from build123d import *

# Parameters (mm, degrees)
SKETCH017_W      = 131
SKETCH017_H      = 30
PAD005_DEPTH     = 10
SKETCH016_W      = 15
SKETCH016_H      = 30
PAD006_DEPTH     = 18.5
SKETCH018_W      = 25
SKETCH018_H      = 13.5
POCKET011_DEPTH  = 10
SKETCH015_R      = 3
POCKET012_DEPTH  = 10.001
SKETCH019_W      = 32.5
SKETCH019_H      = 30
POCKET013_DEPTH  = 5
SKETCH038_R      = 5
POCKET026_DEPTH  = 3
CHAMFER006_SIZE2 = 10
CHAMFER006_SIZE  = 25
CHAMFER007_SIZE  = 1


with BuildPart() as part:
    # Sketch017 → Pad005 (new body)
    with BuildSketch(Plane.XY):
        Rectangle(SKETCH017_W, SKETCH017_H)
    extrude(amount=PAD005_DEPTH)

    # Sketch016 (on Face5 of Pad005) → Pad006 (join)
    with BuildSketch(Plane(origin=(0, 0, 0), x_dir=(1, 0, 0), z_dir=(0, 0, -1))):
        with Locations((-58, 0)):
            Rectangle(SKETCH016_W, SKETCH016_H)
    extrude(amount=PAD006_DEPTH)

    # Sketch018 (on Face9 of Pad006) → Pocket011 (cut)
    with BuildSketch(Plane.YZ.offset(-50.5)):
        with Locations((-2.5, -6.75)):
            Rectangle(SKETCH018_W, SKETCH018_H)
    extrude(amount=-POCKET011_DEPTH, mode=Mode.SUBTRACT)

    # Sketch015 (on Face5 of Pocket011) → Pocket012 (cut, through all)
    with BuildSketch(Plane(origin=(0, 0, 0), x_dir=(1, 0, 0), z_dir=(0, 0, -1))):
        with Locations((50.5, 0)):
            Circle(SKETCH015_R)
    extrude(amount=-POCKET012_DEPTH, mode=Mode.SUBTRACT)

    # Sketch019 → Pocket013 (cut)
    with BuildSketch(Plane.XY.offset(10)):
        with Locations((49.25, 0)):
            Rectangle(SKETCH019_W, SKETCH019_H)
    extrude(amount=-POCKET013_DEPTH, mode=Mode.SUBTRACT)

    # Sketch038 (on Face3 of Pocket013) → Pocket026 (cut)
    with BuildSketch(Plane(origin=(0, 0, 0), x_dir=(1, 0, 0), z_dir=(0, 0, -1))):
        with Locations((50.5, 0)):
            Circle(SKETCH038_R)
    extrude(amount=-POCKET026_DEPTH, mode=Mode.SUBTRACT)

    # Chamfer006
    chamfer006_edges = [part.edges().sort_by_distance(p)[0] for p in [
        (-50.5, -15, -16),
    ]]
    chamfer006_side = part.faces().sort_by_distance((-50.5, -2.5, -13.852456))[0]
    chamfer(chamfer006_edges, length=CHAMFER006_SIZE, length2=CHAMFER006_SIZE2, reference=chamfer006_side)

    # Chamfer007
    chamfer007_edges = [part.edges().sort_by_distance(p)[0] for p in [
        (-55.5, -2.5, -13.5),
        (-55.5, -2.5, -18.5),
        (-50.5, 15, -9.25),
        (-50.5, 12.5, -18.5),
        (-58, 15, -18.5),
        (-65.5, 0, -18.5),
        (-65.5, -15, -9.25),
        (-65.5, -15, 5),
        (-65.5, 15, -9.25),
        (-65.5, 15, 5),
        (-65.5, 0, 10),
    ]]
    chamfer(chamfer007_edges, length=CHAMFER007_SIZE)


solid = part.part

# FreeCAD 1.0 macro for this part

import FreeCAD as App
import Part
import Sketcher


def edges_at(feature, points):
    """Names of the edges that pass closest to the given points."""
    edges = feature.Shape.Edges
    near = lambda p: min(range(len(edges)), key=lambda i: edges[i].distToShape(Part.Vertex(*p))[0])
    return sorted({f"Edge{near(p) + 1}" for p in points})

doc = App.newDocument("Part")
body = doc.addObject("PartDesign::Body", "Body")

# Sketch on XY plane
sketch1 = body.newObject("Sketcher::SketchObject", "Sketch")
sketch1.AttachmentSupport = (doc.getObject("XY_Plane"), [""])
sketch1.MapMode = "FlatFace"
sketch1.addGeometry([
    Part.LineSegment(App.Vector(-66, 15, 0), App.Vector(-66, -15, 0)),
    Part.LineSegment(App.Vector(-66, -15, 0), App.Vector(66, -15, 0)),
    Part.LineSegment(App.Vector(66, -15, 0), App.Vector(66, 15, 0)),
    Part.LineSegment(App.Vector(66, 15, 0), App.Vector(-66, 15, 0)),
], False)
sketch1.addConstraint([
    Sketcher.Constraint("Coincident", 0, 2, 1, 1),
    Sketcher.Constraint("Coincident", 1, 2, 2, 1),
    Sketcher.Constraint("Coincident", 2, 2, 3, 1),
    Sketcher.Constraint("Coincident", 3, 2, 0, 1),
    Sketcher.Constraint("Vertical", 0),
    Sketcher.Constraint("Horizontal", 1),
    Sketcher.Constraint("Vertical", 2),
    Sketcher.Constraint("Horizontal", 3),
    Sketcher.Constraint("Symmetric", 0, 2, 2, 2, -1, 1),
    Sketcher.Constraint("DistanceX", 1, 1, 1, 2, 131.0),
    Sketcher.Constraint("DistanceY", 0, 2, 0, 1, 30.0),
])
pad1 = body.newObject("PartDesign::Pad", "Pad")
pad1.Profile = sketch1
pad1.Length = 10

# Sketch on XY plane
sketch2 = body.newObject("Sketcher::SketchObject", "Sketch001")
sketch2.AttachmentSupport = (doc.getObject("XY_Plane"), [""])
sketch2.MapMode = "FlatFace"
sketch2.addGeometry([
    Part.LineSegment(App.Vector(-66, -15, 0), App.Vector(-66, 15, 0)),
    Part.LineSegment(App.Vector(-66, 15, 0), App.Vector(-50, 15, 0)),
    Part.LineSegment(App.Vector(-50, 15, 0), App.Vector(-50, -15, 0)),
    Part.LineSegment(App.Vector(-50, -15, 0), App.Vector(-66, -15, 0)),
], False)
sketch2.addConstraint([
    Sketcher.Constraint("Coincident", 0, 2, 1, 1),
    Sketcher.Constraint("Coincident", 1, 2, 2, 1),
    Sketcher.Constraint("Coincident", 2, 2, 3, 1),
    Sketcher.Constraint("Coincident", 3, 2, 0, 1),
    Sketcher.Constraint("Vertical", 0),
    Sketcher.Constraint("Horizontal", 1),
    Sketcher.Constraint("Vertical", 2),
    Sketcher.Constraint("Horizontal", 3),
    Sketcher.Constraint("DistanceX", 1, 1, 1, 2, 15.0),
    Sketcher.Constraint("DistanceY", 0, 1, 0, 2, 30.0),
    Sketcher.Constraint("DistanceY", -1, 1, 0, 2, 15.0),
    Sketcher.Constraint("DistanceX", 0, 2, -1, 1, 65.5),
])
pad2 = body.newObject("PartDesign::Pad", "Pad001")
pad2.Profile = sketch2
pad2.Length = 18.5
pad2.Reversed = True

# Sketch on YZ plane
sketch3 = body.newObject("Sketcher::SketchObject", "Sketch002")
sketch3.AttachmentSupport = (doc.getObject("YZ_Plane"), [""])
sketch3.MapMode = "FlatFace"
sketch3.AttachmentOffset = App.Placement(App.Vector(0, 0, -50.5), App.Rotation())
sketch3.addGeometry([
    Part.LineSegment(App.Vector(-15, 0, 0), App.Vector(-15, -14, 0)),
    Part.LineSegment(App.Vector(-15, -14, 0), App.Vector(10, -14, 0)),
    Part.LineSegment(App.Vector(10, -14, 0), App.Vector(10, 0, 0)),
    Part.LineSegment(App.Vector(10, 0, 0), App.Vector(-15, 0, 0)),
], False)
sketch3.addConstraint([
    Sketcher.Constraint("Coincident", 0, 2, 1, 1),
    Sketcher.Constraint("Coincident", 1, 2, 2, 1),
    Sketcher.Constraint("Coincident", 2, 2, 3, 1),
    Sketcher.Constraint("Coincident", 3, 2, 0, 1),
    Sketcher.Constraint("Vertical", 0),
    Sketcher.Constraint("Horizontal", 1),
    Sketcher.Constraint("Vertical", 2),
    Sketcher.Constraint("Horizontal", 3),
    Sketcher.Constraint("PointOnObject", 2, 2, -1),
    Sketcher.Constraint("DistanceX", 1, 1, 1, 2, 25.0),
    Sketcher.Constraint("DistanceY", 0, 2, 0, 1, 13.5),
    Sketcher.Constraint("DistanceX", 0, 2, -1, 1, 15.0),
])
pocket1 = body.newObject("PartDesign::Pocket", "Pocket")
pocket1.Profile = sketch3
pocket1.Length = 10

# Sketch on XY plane
sketch4 = body.newObject("Sketcher::SketchObject", "Sketch003")
sketch4.AttachmentSupport = (doc.getObject("XY_Plane"), [""])
sketch4.MapMode = "FlatFace"
sketch4.addGeometry(Part.Circle(App.Vector(50.5, 0, 0), App.Vector(0, 0, 1), 3), False)
sketch4.addConstraint([
    Sketcher.Constraint("PointOnObject", 0, 3, -1),
    Sketcher.Constraint("Diameter", 0, 6.0),
    Sketcher.Constraint("DistanceX", -1, 1, 0, 3, 50.5),
])
pocket2 = body.newObject("PartDesign::Pocket", "Pocket001")
pocket2.Profile = sketch4
pocket2.Type = "ThroughAll"
pocket2.Reversed = True

# Sketch on XY plane
sketch5 = body.newObject("Sketcher::SketchObject", "Sketch004")
sketch5.AttachmentSupport = (doc.getObject("XY_Plane"), [""])
sketch5.MapMode = "FlatFace"
sketch5.AttachmentOffset = App.Placement(App.Vector(0, 0, 10), App.Rotation())
sketch5.addGeometry([
    Part.LineSegment(App.Vector(33, 15, 0), App.Vector(33, -15, 0)),
    Part.LineSegment(App.Vector(33, -15, 0), App.Vector(66, -15, 0)),
    Part.LineSegment(App.Vector(66, -15, 0), App.Vector(66, 15, 0)),
    Part.LineSegment(App.Vector(66, 15, 0), App.Vector(33, 15, 0)),
], False)
sketch5.addConstraint([
    Sketcher.Constraint("Coincident", 0, 2, 1, 1),
    Sketcher.Constraint("Coincident", 1, 2, 2, 1),
    Sketcher.Constraint("Coincident", 2, 2, 3, 1),
    Sketcher.Constraint("Coincident", 3, 2, 0, 1),
    Sketcher.Constraint("Vertical", 0),
    Sketcher.Constraint("Horizontal", 1),
    Sketcher.Constraint("Vertical", 2),
    Sketcher.Constraint("Horizontal", 3),
    Sketcher.Constraint("DistanceY", 0, 2, 0, 1, 30.0),
    Sketcher.Constraint("DistanceX", 1, 1, 1, 2, 32.5),
    Sketcher.Constraint("DistanceX", -1, 1, 0, 2, 33.0),
    Sketcher.Constraint("DistanceY", 0, 2, -1, 1, 15.0),
])
pocket3 = body.newObject("PartDesign::Pocket", "Pocket002")
pocket3.Profile = sketch5
pocket3.Length = 5

# Sketch on XY plane
sketch6 = body.newObject("Sketcher::SketchObject", "Sketch005")
sketch6.AttachmentSupport = (doc.getObject("XY_Plane"), [""])
sketch6.MapMode = "FlatFace"
sketch6.addGeometry(Part.Circle(App.Vector(50, 0, 0), App.Vector(0, 0, 1), 5), False)
sketch6.addConstraint([
    Sketcher.Constraint("PointOnObject", 0, 3, -1),
    Sketcher.Constraint("Diameter", 0, 10.0),
    Sketcher.Constraint("DistanceX", -1, 1, 0, 3, 50.5),
])
pocket4 = body.newObject("PartDesign::Pocket", "Pocket003")
pocket4.Profile = sketch6
pocket4.Length = 3
pocket4.Reversed = True
doc.recompute()

chamfer = body.newObject("PartDesign::Chamfer", "Chamfer")
chamfer.Base = (pocket4, edges_at(pocket4, [(-50.5, -15, -16)]))
chamfer.ChamferType = "Two distances"
chamfer.Size = 25
chamfer.Size2 = 10
chamfer.FlipDirection = True
doc.recompute()

chamfer2 = body.newObject("PartDesign::Chamfer", "Chamfer001")
chamfer2.Base = (chamfer, edges_at(chamfer, [
    (-55.5, -2.5, -13.5),
    (-55.5, -2.5, -18.5),
    (-50.5, 15, -9.25),
    (-50.5, 12.5, -18.5),
    (-58, 15, -18.5),
    (-65.5, 0, -18.5),
    (-65.5, -15, -4.25),
    (-65.5, -15, -4.25),
    (-65.5, 15, -4.25),
    (-65.5, 15, -4.25),
    (-65.5, 0, 10),
]))
chamfer2.Size = 1

doc.recompute()
